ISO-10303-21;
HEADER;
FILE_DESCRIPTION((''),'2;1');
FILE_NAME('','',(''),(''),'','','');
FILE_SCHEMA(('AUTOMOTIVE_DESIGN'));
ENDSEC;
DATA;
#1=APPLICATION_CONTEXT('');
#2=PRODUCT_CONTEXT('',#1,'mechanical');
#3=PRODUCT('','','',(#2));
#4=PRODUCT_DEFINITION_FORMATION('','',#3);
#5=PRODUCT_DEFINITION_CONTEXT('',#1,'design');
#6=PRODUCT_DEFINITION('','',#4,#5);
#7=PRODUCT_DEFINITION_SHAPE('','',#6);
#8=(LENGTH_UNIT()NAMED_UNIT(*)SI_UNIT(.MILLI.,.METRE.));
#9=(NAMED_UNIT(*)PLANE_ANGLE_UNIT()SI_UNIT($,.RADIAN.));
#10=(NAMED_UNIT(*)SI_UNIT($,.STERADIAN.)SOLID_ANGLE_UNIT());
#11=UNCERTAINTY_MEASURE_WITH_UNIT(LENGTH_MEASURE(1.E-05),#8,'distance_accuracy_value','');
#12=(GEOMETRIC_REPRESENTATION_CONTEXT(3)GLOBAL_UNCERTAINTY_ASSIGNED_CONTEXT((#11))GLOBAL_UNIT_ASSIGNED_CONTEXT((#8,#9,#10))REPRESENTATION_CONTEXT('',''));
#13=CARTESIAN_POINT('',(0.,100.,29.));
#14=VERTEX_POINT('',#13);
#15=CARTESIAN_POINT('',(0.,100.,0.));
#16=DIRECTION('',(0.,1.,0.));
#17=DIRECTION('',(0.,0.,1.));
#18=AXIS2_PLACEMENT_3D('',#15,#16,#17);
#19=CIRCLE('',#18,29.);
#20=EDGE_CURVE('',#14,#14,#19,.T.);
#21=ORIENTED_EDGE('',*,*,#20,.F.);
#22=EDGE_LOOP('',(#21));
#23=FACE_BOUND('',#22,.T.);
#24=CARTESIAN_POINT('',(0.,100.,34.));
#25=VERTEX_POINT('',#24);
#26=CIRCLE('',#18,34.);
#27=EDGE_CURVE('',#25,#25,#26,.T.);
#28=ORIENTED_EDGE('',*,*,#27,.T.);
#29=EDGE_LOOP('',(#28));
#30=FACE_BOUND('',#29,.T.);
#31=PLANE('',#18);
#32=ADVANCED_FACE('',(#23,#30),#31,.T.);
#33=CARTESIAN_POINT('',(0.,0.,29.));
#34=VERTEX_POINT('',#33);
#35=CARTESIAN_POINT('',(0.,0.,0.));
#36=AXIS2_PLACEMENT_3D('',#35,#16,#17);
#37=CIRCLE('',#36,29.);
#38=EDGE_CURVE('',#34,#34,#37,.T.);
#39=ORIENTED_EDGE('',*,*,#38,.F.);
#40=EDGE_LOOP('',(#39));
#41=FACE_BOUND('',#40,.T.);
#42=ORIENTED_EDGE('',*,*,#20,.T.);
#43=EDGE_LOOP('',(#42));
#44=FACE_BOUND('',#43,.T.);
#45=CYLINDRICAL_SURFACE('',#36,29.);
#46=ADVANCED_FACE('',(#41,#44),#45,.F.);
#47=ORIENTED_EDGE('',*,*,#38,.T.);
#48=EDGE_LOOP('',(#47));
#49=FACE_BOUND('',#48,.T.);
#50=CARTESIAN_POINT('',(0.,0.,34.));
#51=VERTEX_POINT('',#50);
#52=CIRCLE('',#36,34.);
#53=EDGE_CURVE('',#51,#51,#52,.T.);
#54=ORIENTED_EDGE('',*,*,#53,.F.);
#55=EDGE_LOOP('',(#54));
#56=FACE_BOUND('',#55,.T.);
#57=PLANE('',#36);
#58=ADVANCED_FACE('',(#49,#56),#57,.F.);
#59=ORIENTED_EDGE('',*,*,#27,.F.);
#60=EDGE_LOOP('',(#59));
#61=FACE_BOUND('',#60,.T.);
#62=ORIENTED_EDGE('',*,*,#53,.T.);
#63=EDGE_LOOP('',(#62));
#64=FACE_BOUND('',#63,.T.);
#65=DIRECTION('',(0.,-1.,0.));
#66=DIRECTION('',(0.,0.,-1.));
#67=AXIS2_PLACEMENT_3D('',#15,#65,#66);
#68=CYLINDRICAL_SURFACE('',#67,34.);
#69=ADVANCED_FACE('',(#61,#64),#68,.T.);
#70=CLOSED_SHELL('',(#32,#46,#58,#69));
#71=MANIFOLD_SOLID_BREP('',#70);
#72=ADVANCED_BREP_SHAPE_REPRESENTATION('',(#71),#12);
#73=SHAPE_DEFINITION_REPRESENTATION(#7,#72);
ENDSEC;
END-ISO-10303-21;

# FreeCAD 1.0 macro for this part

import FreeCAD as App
import Part
import Sketcher

V = App.Vector

doc = App.newDocument("Part")
body = doc.addObject("PartDesign::Body", "Body")

sketch1 = body.newObject("Sketcher::SketchObject", "Sketch")
sketch1.AttachmentSupport = (doc.getObject("XZ_Plane"), [""])
sketch1.MapMode = "FlatFace"
sketch1.addGeometry(Part.Circle(V(0, 0, 0), V(0, 0, 1), 34), False)
sketch1.addConstraint([
    Sketcher.Constraint("Coincident", 0, 3, -1, 1),
    Sketcher.Constraint("Diameter", 0, 68.0),
])
pad1 = body.newObject("PartDesign::Pad", "Pad")
pad1.Profile = sketch1
pad1.Length = 100
pad1.Reversed = True

sketch2 = body.newObject("Sketcher::SketchObject", "Sketch001")
sketch2.AttachmentSupport = (doc.getObject("XZ_Plane"), [""])
sketch2.MapMode = "FlatFace"
sketch2.AttachmentOffset = App.Placement(V(0, 0, -100), App.Rotation())
sketch2.addGeometry(Part.Circle(V(0, 0, 0), V(0, 0, 1), 29), False)
sketch2.addConstraint([
    Sketcher.Constraint("Coincident", 0, 3, -1, 1),
    Sketcher.Constraint("Diameter", 0, 58.0),
])
pocket1 = body.newObject("PartDesign::Pocket", "Pocket")
pocket1.Profile = sketch2
pocket1.Length = 100
pocket1.Reversed = True

doc.recompute()
